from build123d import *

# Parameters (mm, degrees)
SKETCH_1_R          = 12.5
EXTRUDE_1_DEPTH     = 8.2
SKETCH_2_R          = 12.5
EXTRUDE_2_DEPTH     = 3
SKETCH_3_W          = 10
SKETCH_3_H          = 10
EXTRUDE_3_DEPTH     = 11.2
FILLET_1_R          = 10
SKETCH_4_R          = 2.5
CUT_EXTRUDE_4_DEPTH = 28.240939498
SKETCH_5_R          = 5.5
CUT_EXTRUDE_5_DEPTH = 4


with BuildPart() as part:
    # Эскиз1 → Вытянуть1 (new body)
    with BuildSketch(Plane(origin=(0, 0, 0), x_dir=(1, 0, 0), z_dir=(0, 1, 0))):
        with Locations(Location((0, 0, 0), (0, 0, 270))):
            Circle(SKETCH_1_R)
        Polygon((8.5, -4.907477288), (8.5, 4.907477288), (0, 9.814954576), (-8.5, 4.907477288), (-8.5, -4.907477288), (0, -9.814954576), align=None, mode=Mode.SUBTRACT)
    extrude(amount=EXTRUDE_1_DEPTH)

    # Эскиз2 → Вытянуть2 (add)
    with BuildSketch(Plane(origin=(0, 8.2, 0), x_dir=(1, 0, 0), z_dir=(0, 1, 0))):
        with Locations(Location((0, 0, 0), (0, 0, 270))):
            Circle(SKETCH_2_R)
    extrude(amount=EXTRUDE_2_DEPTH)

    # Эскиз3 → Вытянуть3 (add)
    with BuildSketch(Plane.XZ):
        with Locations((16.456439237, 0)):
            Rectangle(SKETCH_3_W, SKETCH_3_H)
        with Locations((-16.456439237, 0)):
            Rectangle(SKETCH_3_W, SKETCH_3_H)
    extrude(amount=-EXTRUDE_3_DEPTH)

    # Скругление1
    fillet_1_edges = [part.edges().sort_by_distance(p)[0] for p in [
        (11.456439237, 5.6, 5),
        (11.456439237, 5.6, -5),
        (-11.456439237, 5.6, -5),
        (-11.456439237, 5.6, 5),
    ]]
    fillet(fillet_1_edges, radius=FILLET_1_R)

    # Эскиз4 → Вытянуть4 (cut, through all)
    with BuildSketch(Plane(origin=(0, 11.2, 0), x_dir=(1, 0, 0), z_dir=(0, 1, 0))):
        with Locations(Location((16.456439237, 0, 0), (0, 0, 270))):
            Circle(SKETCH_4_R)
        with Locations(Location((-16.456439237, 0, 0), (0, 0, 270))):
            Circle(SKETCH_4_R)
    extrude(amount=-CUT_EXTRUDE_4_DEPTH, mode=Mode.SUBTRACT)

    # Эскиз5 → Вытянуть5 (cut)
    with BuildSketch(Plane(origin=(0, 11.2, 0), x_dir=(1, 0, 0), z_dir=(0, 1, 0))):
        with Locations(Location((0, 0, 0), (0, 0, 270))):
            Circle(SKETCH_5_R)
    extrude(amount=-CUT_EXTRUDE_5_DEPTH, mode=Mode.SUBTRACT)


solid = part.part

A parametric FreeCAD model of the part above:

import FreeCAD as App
import Part
import Sketcher
Q = App.Units.Quantity


def edges_at(feature, points):
    """Names of the edges that pass closest to the given points."""
    edges = feature.Shape.Edges
    near = lambda p: min(range(len(edges)), key=lambda i: edges[i].distToShape(Part.Vertex(*p))[0])
    return sorted({f"Edge{near(p) + 1}" for p in points})

doc = App.newDocument("Part")
body = doc.addObject("PartDesign::Body", "Body")

# Sketch on XZ plane
sketch1 = body.newObject("Sketcher::SketchObject", "Sketch")
sketch1.AttachmentSupport = (doc.getObject("XZ_Plane"), [""])
sketch1.MapMode = "FlatFace"
sketch1.addGeometry(Part.Circle(App.Vector(0, 0, 0), App.Vector(0, 0, 1), 12), False)
sketch1.addGeometry(Part.LineSegment(App.Vector(8, -5, 0), App.Vector(8, 5, 0)), False)
sketch1.addGeometry(Part.LineSegment(App.Vector(8, 5, 0), App.Vector(0, 10, 0)), False)
sketch1.addGeometry(Part.LineSegment(App.Vector(0, 10, 0), App.Vector(-8, 5, 0)), False)
sketch1.addGeometry(Part.LineSegment(App.Vector(-8, 5, 0), App.Vector(-8, -5, 0)), False)
sketch1.addGeometry(Part.LineSegment(App.Vector(-8, -5, 0), App.Vector(0, -10, 0)), False)
sketch1.addGeometry(Part.LineSegment(App.Vector(0, -10, 0), App.Vector(8, -5, 0)), False)
sketch1.addConstraint(Sketcher.Constraint("Coincident", 1, 2, 2, 1))
sketch1.addConstraint(Sketcher.Constraint("Coincident", 2, 2, 3, 1))
sketch1.addConstraint(Sketcher.Constraint("Coincident", 3, 2, 4, 1))
sketch1.addConstraint(Sketcher.Constraint("Coincident", 4, 2, 5, 1))
sketch1.addConstraint(Sketcher.Constraint("Coincident", 5, 2, 6, 1))
sketch1.addConstraint(Sketcher.Constraint("Coincident", 6, 2, 1, 1))
sketch1.addConstraint(Sketcher.Constraint("Vertical", 1))
sketch1.addConstraint(Sketcher.Constraint("Vertical", 4))
sketch1.addConstraint(Sketcher.Constraint("Coincident", 0, 3, -1, 1))
sketch1.addConstraint(Sketcher.Constraint("Symmetric", 1, 2, 4, 2, -1, 1))
sketch1.addConstraint(Sketcher.Constraint("Symmetric", 2, 2, 5, 2, -1, 1))
sketch1.addConstraint(Sketcher.Constraint("PointOnObject", 2, 2, -2))
sketch1.addConstraint(Sketcher.Constraint("Parallel", 3, 6))
sketch1.addConstraint(Sketcher.Constraint("Horizontal", 1, 2, 3, 2))
sketch1.addConstraint(Sketcher.Constraint("Diameter", 0, Q("25 mm")))
sketch1.addConstraint(Sketcher.Constraint("Angle", 2, Q("150 deg")))
sketch1.addConstraint(Sketcher.Constraint("DistanceX", 3, 2, 1, 2, Q("17 mm")))
sketch1.addConstraint(Sketcher.Constraint("DistanceY", 1, 1, 1, 2, Q("9.814955 mm")))
pad1 = body.newObject("PartDesign::Pad", "Pad")
pad1.Profile = sketch1
pad1.Length = 8.2
pad1.Reversed = True

# Sketch on XZ plane
sketch2 = body.newObject("Sketcher::SketchObject", "Sketch001")
sketch2.AttachmentSupport = (doc.getObject("XZ_Plane"), [""])
sketch2.MapMode = "FlatFace"
sketch2.AttachmentOffset = App.Placement(App.Vector(0, 0, -8.2), App.Rotation())
sketch2.addGeometry(Part.Circle(App.Vector(0, 0, 0), App.Vector(0, 0, 1), 12), False)
sketch2.addConstraint(Sketcher.Constraint("Coincident", 0, 3, -1, 1))
sketch2.addConstraint(Sketcher.Constraint("Diameter", 0, Q("25 mm")))
pad2 = body.newObject("PartDesign::Pad", "Pad001")
pad2.Profile = sketch2
pad2.Length = 3
pad2.Reversed = True

# Sketch on XZ plane
sketch3 = body.newObject("Sketcher::SketchObject", "Sketch002")
sketch3.AttachmentSupport = (doc.getObject("XZ_Plane"), [""])
sketch3.MapMode = "FlatFace"
sketch3.addGeometry(Part.LineSegment(App.Vector(11, 5, 0), App.Vector(11, -5, 0)), False)
sketch3.addGeometry(Part.LineSegment(App.Vector(11, -5, 0), App.Vector(21, -5, 0)), False)
sketch3.addGeometry(Part.LineSegment(App.Vector(21, -5, 0), App.Vector(21, 5, 0)), False)
sketch3.addGeometry(Part.LineSegment(App.Vector(21, 5, 0), App.Vector(11, 5, 0)), False)
sketch3.addGeometry(Part.LineSegment(App.Vector(-21, 5, 0), App.Vector(-21, -5, 0)), False)
sketch3.addGeometry(Part.LineSegment(App.Vector(-21, -5, 0), App.Vector(-11, -5, 0)), False)
sketch3.addGeometry(Part.LineSegment(App.Vector(-11, -5, 0), App.Vector(-11, 5, 0)), False)
sketch3.addGeometry(Part.LineSegment(App.Vector(-11, 5, 0), App.Vector(-21, 5, 0)), False)
sketch3.addConstraint(Sketcher.Constraint("Coincident", 0, 2, 1, 1))
sketch3.addConstraint(Sketcher.Constraint("Coincident", 1, 2, 2, 1))
sketch3.addConstraint(Sketcher.Constraint("Coincident", 2, 2, 3, 1))
sketch3.addConstraint(Sketcher.Constraint("Coincident", 3, 2, 0, 1))
sketch3.addConstraint(Sketcher.Constraint("Coincident", 4, 2, 5, 1))
sketch3.addConstraint(Sketcher.Constraint("Coincident", 5, 2, 6, 1))
sketch3.addConstraint(Sketcher.Constraint("Coincident", 6, 2, 7, 1))
sketch3.addConstraint(Sketcher.Constraint("Coincident", 7, 2, 4, 1))
sketch3.addConstraint(Sketcher.Constraint("Vertical", 0))
sketch3.addConstraint(Sketcher.Constraint("Horizontal", 1))
sketch3.addConstraint(Sketcher.Constraint("Vertical", 2))
sketch3.addConstraint(Sketcher.Constraint("Horizontal", 3))
sketch3.addConstraint(Sketcher.Constraint("Vertical", 4))
sketch3.addConstraint(Sketcher.Constraint("Horizontal", 5))
sketch3.addConstraint(Sketcher.Constraint("Vertical", 6))
sketch3.addConstraint(Sketcher.Constraint("Horizontal", 7))
sketch3.addConstraint(Sketcher.Constraint("Symmetric", 2, 2, 4, 2, -1, 1))
sketch3.addConstraint(Sketcher.Constraint("Symmetric", 0, 2, 6, 2, -1, 1))
sketch3.addConstraint(Sketcher.Constraint("Horizontal", 1, 2, 4, 2))
sketch3.addConstraint(Sketcher.Constraint("Equal", 7, 0))
sketch3.addConstraint(Sketcher.Constraint("DistanceX", 1, 1, 1, 2, Q("10 mm")))
sketch3.addConstraint(Sketcher.Constraint("DistanceX", -1, 1, 0, 2, Q("11.456439 mm")))
pad3 = body.newObject("PartDesign::Pad", "Pad002")
pad3.Profile = sketch3
pad3.Length = 11.2
pad3.Reversed = True
doc.recompute()

fillet = body.newObject("PartDesign::Fillet", "Fillet")
fillet.Base = (pad3, edges_at(pad3, [
    (11.456, 5.6, 5),
    (11.456, 5.6, -5),
    (-11.456, 5.6, -5),
    (-11.456, 5.6, 5),
]))
fillet.Radius = 10

# Sketch on XZ plane
sketch4 = body.newObject("Sketcher::SketchObject", "Sketch003")
sketch4.AttachmentSupport = (doc.getObject("XZ_Plane"), [""])
sketch4.MapMode = "FlatFace"
sketch4.AttachmentOffset = App.Placement(App.Vector(0, 0, -11.2), App.Rotation())
sketch4.addGeometry(Part.Circle(App.Vector(16.5, 0, 0), App.Vector(0, 0, 1), 2.5), False)
sketch4.addGeometry(Part.Circle(App.Vector(-16.5, 0, 0), App.Vector(0, 0, 1), 2.5), False)
sketch4.addConstraint(Sketcher.Constraint("Equal", 0, 1))
sketch4.addConstraint(Sketcher.Constraint("Symmetric", 0, 3, 1, 3, -1, 1))
sketch4.addConstraint(Sketcher.Constraint("PointOnObject", 0, 3, -1))
sketch4.addConstraint(Sketcher.Constraint("Diameter", 0, Q("5 mm")))
sketch4.addConstraint(Sketcher.Constraint("DistanceX", -1, 1, 0, 3, Q("16.456439 mm")))
pocket1 = body.newObject("PartDesign::Pocket", "Pocket")
pocket1.Profile = sketch4
pocket1.Type = "ThroughAll"
pocket1.Reversed = True

# Sketch on XZ plane
sketch5 = body.newObject("Sketcher::SketchObject", "Sketch004")
sketch5.AttachmentSupport = (doc.getObject("XZ_Plane"), [""])
sketch5.MapMode = "FlatFace"
sketch5.AttachmentOffset = App.Placement(App.Vector(0, 0, -11.2), App.Rotation())
sketch5.addGeometry(Part.Circle(App.Vector(0, 0, 0), App.Vector(0, 0, 1), 6), False)
sketch5.addConstraint(Sketcher.Constraint("Coincident", 0, 3, -1, 1))
sketch5.addConstraint(Sketcher.Constraint("Diameter", 0, Q("11 mm")))
pocket2 = body.newObject("PartDesign::Pocket", "Pocket001")
pocket2.Profile = sketch5
pocket2.Length = 4
pocket2.Reversed = True

doc.recompute()
